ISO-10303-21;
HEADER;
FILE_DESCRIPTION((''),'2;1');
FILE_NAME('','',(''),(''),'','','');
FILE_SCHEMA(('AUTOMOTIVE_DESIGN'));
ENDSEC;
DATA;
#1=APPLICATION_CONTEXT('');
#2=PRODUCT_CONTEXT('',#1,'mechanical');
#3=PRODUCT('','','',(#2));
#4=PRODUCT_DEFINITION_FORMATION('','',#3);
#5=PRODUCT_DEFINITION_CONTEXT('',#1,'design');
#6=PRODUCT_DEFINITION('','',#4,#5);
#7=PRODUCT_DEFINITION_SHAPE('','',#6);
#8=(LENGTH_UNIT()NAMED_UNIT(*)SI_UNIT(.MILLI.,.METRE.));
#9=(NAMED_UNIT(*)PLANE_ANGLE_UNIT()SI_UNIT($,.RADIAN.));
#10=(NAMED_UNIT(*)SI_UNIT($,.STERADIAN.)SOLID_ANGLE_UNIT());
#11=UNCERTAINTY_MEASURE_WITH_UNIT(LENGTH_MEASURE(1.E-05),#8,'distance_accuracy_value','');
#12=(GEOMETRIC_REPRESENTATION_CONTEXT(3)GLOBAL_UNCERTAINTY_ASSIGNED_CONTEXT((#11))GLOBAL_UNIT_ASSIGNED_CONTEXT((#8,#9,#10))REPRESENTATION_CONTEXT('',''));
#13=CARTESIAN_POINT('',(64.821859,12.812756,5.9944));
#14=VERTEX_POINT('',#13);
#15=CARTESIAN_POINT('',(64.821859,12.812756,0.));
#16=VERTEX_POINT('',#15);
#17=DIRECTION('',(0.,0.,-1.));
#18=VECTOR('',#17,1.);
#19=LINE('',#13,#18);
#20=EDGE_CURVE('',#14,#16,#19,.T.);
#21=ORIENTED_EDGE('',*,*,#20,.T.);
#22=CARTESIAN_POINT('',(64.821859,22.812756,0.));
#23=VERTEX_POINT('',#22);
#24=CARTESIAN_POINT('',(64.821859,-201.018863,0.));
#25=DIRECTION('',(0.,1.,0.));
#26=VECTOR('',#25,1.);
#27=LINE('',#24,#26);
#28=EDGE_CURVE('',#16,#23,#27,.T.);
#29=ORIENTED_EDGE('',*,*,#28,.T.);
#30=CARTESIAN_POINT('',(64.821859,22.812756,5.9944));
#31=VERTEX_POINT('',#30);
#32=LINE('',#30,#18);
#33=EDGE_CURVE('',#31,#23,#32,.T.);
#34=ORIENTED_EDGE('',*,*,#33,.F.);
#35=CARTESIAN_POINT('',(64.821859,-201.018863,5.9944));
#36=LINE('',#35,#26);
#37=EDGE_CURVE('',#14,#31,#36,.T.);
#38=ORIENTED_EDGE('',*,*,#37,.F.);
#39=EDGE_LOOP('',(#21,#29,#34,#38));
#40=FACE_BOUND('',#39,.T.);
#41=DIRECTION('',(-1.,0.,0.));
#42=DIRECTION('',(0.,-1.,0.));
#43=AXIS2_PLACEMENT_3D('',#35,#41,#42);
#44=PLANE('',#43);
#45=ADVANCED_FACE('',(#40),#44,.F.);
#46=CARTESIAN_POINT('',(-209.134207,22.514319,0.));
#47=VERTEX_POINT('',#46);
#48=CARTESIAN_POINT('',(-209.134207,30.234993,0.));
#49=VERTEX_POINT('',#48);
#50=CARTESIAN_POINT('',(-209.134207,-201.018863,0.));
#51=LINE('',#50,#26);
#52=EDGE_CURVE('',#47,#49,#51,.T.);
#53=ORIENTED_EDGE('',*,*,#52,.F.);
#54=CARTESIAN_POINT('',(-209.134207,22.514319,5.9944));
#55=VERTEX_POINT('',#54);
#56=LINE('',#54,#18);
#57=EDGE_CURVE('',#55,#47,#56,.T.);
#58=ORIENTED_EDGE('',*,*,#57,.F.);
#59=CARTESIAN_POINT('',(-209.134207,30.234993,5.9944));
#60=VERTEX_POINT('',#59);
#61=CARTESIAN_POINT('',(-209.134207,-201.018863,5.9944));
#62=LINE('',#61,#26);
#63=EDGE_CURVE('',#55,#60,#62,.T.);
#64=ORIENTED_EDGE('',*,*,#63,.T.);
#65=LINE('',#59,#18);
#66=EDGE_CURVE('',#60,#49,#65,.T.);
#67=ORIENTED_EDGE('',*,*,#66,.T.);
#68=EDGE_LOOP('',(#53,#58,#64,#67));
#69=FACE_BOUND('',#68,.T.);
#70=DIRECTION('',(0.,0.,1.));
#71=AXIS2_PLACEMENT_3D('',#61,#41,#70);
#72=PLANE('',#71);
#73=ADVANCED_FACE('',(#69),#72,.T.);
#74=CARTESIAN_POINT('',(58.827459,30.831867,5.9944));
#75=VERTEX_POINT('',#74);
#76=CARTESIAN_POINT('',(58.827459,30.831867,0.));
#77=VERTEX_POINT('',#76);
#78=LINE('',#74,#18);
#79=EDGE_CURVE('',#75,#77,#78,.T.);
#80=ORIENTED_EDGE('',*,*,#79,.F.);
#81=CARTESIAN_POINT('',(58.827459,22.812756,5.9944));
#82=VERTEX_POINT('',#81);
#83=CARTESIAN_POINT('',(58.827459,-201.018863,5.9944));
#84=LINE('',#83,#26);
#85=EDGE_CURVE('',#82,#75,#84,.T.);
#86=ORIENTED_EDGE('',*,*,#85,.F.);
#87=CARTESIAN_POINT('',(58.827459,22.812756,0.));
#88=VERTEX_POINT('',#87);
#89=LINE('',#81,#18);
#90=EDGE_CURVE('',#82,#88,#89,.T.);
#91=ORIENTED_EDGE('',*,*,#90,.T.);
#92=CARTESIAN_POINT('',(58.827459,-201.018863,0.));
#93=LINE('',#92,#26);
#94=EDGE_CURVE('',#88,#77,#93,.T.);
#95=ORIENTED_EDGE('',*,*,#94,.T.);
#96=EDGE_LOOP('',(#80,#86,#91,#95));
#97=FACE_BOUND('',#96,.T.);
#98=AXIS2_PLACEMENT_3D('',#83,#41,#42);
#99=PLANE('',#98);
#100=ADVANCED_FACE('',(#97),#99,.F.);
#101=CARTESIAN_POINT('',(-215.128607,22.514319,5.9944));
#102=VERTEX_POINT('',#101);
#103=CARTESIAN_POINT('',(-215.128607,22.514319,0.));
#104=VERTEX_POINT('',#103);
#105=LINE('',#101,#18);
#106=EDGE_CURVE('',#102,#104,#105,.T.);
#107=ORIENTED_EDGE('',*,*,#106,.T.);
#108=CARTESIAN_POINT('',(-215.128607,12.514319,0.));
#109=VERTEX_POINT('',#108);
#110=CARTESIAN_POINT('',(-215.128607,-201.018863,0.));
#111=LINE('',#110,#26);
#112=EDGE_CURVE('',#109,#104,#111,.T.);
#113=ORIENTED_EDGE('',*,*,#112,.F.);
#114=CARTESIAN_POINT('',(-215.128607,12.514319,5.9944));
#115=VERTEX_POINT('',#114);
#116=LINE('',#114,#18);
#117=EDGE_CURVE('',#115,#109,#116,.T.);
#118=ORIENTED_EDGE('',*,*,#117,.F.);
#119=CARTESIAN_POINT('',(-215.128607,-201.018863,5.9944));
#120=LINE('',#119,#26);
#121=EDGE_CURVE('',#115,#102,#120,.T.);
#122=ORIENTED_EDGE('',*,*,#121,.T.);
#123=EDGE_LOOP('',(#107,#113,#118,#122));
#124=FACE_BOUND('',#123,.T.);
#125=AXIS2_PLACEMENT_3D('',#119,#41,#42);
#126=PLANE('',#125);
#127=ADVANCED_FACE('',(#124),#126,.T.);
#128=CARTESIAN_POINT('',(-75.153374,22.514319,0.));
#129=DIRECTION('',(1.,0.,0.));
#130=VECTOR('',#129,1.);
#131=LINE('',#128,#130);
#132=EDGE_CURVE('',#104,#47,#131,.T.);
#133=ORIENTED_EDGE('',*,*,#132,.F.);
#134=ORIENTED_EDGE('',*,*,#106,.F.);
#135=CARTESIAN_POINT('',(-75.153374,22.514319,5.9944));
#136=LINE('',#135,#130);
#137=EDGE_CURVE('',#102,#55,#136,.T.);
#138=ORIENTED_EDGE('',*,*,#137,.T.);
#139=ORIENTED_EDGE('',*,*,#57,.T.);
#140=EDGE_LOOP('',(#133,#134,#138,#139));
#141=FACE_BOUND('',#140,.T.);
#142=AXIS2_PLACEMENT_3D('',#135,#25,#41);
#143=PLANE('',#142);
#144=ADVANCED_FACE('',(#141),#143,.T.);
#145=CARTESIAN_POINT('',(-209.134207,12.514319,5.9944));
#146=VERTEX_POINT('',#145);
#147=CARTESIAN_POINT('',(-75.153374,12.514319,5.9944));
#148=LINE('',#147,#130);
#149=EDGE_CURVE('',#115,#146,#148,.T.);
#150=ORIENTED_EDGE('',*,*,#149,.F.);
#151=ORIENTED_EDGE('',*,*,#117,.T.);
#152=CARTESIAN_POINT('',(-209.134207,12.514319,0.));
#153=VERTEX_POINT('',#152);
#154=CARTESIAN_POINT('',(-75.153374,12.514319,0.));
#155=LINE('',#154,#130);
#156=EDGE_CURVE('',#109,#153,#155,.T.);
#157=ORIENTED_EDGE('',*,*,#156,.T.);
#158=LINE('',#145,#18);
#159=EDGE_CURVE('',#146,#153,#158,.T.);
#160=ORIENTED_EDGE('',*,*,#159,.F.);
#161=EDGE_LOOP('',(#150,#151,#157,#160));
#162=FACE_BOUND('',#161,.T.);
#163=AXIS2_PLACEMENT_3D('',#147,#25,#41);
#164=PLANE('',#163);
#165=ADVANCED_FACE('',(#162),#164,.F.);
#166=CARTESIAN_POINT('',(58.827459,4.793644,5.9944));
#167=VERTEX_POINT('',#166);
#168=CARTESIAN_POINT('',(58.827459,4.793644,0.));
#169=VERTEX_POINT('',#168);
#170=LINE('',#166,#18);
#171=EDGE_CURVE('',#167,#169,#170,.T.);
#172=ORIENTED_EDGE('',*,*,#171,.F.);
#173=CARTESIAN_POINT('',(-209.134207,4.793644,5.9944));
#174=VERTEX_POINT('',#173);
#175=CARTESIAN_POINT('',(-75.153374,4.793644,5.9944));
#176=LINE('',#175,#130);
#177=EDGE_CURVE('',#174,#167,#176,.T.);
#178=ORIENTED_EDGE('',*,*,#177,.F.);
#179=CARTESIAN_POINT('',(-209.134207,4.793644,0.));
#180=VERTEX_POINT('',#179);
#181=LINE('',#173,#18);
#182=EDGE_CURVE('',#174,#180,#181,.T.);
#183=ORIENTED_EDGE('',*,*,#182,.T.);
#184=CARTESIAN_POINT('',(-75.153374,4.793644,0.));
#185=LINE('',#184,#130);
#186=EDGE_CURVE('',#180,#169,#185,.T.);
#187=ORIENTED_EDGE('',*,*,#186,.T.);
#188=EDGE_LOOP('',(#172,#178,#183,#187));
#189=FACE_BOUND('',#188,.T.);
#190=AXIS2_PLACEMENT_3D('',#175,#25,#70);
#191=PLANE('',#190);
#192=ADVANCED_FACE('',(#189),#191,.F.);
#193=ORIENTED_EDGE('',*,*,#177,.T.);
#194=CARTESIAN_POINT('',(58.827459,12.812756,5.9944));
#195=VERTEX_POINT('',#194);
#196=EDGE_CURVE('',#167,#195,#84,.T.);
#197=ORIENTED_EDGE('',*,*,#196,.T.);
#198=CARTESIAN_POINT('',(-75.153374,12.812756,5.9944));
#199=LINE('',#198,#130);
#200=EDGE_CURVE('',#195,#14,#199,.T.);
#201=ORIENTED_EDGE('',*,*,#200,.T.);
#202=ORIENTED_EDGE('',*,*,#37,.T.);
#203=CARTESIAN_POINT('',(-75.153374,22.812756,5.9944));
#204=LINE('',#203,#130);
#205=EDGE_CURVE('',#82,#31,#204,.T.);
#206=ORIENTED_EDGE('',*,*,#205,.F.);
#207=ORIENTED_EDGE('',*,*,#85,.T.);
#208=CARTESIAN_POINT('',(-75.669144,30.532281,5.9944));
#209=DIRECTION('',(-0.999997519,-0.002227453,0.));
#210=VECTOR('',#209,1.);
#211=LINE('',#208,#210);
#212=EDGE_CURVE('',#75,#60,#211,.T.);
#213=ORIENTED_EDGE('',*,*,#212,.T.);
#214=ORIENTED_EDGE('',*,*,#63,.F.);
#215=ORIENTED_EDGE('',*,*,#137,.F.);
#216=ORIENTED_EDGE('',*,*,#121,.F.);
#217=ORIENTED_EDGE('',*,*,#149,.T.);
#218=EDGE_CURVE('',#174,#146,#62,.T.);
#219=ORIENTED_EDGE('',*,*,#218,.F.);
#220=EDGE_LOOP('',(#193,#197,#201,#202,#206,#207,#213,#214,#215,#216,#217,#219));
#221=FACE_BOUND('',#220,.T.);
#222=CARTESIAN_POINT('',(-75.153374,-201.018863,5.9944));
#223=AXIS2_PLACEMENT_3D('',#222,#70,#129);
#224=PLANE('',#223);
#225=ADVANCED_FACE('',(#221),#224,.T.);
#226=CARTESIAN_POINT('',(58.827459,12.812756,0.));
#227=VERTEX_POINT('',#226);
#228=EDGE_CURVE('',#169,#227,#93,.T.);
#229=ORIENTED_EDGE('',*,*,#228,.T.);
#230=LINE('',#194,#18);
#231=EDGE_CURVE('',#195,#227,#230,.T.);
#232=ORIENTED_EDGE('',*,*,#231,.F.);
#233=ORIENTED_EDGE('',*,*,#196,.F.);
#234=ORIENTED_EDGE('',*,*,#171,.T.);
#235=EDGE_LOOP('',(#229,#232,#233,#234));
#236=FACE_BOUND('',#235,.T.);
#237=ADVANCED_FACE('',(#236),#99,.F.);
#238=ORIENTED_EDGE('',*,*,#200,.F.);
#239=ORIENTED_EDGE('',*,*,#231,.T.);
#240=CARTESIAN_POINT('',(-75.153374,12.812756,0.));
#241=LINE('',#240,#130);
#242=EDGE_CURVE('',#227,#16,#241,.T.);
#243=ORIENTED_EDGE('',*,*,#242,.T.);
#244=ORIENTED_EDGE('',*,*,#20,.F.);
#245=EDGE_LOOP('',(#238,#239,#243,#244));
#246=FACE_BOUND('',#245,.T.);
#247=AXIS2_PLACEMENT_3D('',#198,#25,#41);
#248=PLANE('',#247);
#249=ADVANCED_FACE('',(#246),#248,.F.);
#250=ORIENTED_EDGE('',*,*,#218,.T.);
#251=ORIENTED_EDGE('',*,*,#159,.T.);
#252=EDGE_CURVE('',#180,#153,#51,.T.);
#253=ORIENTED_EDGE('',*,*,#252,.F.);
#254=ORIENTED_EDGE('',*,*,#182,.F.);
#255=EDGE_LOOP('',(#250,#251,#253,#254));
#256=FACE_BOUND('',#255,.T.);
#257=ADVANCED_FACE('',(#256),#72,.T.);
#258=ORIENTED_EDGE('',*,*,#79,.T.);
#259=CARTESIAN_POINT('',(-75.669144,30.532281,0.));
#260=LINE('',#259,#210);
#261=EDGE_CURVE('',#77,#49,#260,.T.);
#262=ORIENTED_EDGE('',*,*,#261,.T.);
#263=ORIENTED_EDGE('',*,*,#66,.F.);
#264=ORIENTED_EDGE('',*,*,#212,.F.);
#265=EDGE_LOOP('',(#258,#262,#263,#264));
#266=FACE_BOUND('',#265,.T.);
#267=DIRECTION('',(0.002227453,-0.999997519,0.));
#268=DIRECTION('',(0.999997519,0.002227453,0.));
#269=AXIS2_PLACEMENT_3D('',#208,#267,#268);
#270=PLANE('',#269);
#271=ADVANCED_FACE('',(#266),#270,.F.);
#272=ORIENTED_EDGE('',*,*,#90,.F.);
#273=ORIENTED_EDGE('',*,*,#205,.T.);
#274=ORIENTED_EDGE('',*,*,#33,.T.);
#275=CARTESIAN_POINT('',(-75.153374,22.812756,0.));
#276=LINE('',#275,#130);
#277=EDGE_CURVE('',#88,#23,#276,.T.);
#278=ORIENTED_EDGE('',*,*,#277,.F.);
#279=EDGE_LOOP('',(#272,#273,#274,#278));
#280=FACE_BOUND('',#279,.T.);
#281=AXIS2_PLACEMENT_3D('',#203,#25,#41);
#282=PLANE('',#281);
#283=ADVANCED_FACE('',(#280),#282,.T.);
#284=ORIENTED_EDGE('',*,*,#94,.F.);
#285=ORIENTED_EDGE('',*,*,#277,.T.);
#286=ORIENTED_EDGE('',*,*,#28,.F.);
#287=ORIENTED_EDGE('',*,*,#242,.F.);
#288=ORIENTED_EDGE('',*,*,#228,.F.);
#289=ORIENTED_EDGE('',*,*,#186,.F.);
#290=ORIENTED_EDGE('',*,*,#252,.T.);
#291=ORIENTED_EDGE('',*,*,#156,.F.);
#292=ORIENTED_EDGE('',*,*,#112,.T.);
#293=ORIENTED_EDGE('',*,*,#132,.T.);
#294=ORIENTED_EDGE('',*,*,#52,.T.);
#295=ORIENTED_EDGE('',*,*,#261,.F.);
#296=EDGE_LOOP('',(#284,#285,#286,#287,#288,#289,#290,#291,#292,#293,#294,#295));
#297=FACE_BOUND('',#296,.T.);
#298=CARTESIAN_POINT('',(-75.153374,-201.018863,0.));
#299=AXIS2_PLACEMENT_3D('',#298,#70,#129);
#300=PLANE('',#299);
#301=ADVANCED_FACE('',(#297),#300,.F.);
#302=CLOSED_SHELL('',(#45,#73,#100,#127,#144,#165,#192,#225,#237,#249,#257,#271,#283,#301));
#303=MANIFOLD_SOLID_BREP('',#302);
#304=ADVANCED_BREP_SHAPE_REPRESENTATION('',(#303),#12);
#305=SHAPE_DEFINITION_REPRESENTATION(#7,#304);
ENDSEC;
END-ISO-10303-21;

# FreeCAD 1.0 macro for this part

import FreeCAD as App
import Part
import Sketcher

V = App.Vector

doc = App.newDocument("Part")
body = doc.addObject("PartDesign::Body", "Body")

# Sketch on XY plane
sketch1 = doc.addObject("Sketcher::SketchObject", "Sketch")
body.addObject(sketch1)
sketch1.AttachmentSupport = (doc.XY_Plane, [""])
sketch1.MapMode = "FlatFace"
sketch1.addGeometry([
    Part.LineSegment(V(-209, 5, 0), V(59, 5, 0)),  # 0
    Part.LineSegment(V(59, 5, 0), V(59, 13, 0)),  # 1
    Part.LineSegment(V(59, 13, 0), V(65, 13, 0)),  # 2
    Part.LineSegment(V(65, 13, 0), V(65, 23, 0)),  # 3
    Part.LineSegment(V(65, 23, 0), V(59, 23, 0)),  # 4
    Part.LineSegment(V(59, 23, 0), V(59, 31, 0)),  # 5
    Part.LineSegment(V(59, 31, 0), V(-209, 30, 0)),  # 6
    Part.LineSegment(V(-209, 30, 0), V(-209, 23, 0)),  # 7
    Part.LineSegment(V(-209, 23, 0), V(-215, 23, 0)),  # 8
    Part.LineSegment(V(-215, 23, 0), V(-215, 13, 0)),  # 9
    Part.LineSegment(V(-215, 13, 0), V(-209, 13, 0)),  # 10
    Part.LineSegment(V(-209, 13, 0), V(-209, 5, 0)),  # 11
], False)
sketch1.addConstraint([
    Sketcher.Constraint("Coincident", 0, 2, 1, 1),
    Sketcher.Constraint("Coincident", 1, 2, 2, 1),
    Sketcher.Constraint("Coincident", 2, 2, 3, 1),
    Sketcher.Constraint("Coincident", 3, 2, 4, 1),
    Sketcher.Constraint("Coincident", 4, 2, 5, 1),
    Sketcher.Constraint("Coincident", 5, 2, 6, 1),
    Sketcher.Constraint("Coincident", 6, 2, 7, 1),
    Sketcher.Constraint("Coincident", 7, 2, 8, 1),
    Sketcher.Constraint("Coincident", 8, 2, 9, 1),
    Sketcher.Constraint("Coincident", 9, 2, 10, 1),
    Sketcher.Constraint("Coincident", 10, 2, 11, 1),
    Sketcher.Constraint("Coincident", 11, 2, 0, 1),
    Sketcher.Constraint("Horizontal", 0),
    Sketcher.Constraint("Vertical", 1),
    Sketcher.Constraint("Horizontal", 2),
    Sketcher.Constraint("Vertical", 3),
    Sketcher.Constraint("Horizontal", 4),
    Sketcher.Constraint("Vertical", 5),
    Sketcher.Constraint("Vertical", 7),
    Sketcher.Constraint("Horizontal", 8),
    Sketcher.Constraint("Vertical", 9),
    Sketcher.Constraint("Horizontal", 10),
    Sketcher.Constraint("Vertical", 11),
    Sketcher.Constraint("Vertical", 1, 2, 4, 2),
    Sketcher.Constraint("Vertical", 7, 2, 10, 2),
    Sketcher.Constraint("Equal", 4, 8),
    Sketcher.Constraint("Equal", 1, 5),
    Sketcher.Constraint("Equal", 3, 9),
    Sketcher.Constraint("Equal", 7, 11),
    Sketcher.Constraint("DistanceY", 3, 1, 3, 2, 10.0),
    Sketcher.Constraint("DistanceX", 2, 1, 2, 2, 5.9944),
    Sketcher.Constraint("DistanceY", 1, 1, 1, 2, 8.019111),
    Sketcher.Constraint("Distance", 6, 267.96233),
    Sketcher.Constraint("DistanceY", 7, 2, 7, 1, 7.720675),
    Sketcher.Constraint("DistanceX", -1, 1, 0, 2, 58.827459),
    Sketcher.Constraint("DistanceY", -1, 1, 7, 2, 22.514319),
])
pad1 = doc.addObject("PartDesign::Pad", "Pad")
body.addObject(pad1)
pad1.Profile = sketch1
pad1.Length = 5.9944

doc.recompute()
